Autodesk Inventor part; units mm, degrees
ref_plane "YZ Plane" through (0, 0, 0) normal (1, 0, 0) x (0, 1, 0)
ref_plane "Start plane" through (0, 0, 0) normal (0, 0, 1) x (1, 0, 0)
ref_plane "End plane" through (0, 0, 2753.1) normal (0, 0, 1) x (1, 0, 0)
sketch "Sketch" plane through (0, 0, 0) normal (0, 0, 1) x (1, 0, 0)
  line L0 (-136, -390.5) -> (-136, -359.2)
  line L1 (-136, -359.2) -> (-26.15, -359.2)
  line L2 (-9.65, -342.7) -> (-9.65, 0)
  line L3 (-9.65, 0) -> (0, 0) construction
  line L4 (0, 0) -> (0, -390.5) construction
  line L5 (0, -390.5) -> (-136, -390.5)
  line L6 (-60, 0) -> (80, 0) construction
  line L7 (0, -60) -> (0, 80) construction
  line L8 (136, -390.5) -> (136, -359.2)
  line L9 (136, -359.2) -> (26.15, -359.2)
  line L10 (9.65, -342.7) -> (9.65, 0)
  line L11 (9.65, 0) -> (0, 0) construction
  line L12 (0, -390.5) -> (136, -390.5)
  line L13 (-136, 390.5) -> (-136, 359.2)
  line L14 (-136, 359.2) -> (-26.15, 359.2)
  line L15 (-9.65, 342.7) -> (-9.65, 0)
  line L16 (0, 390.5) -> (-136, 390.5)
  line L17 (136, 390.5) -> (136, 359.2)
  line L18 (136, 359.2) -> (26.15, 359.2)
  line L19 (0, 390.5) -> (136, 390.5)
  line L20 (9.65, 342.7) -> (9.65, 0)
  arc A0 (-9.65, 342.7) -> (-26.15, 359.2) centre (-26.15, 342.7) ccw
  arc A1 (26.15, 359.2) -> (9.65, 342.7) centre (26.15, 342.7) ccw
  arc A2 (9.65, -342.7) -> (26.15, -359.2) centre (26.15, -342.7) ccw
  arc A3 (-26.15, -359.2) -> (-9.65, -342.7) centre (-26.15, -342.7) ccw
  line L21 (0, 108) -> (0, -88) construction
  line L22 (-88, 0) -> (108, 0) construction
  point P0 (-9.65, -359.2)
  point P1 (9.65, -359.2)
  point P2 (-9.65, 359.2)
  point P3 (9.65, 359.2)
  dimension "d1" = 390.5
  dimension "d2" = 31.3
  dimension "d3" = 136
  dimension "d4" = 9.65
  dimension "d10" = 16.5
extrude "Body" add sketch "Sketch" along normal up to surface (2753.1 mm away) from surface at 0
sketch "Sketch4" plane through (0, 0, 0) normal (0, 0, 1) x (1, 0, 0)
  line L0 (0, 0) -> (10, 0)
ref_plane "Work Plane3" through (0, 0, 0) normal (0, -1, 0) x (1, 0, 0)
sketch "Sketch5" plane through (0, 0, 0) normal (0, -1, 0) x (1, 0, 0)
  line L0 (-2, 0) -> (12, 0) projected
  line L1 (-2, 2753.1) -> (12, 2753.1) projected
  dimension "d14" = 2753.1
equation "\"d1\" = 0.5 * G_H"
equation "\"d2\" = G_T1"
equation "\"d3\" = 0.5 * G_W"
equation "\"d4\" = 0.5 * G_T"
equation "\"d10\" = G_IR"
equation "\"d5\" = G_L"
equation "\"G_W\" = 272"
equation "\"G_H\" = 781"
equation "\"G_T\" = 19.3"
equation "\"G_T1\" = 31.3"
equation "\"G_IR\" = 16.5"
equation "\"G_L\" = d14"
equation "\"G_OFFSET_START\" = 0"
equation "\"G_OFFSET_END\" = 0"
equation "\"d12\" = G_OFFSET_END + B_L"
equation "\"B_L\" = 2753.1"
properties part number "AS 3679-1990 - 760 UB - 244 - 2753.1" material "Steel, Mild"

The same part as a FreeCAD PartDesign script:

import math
import FreeCAD as App
import Part
import Sketcher
Q = App.Units.Quantity

doc = App.newDocument("Part")
params = doc.addObject("Spreadsheet::Sheet", "Params")
for row, (alias, value) in enumerate([
    ("sketch1_radius", "16.5 mm"),
    ("sketch1_height", "31.3 mm"),
    ("pad1_length", "2753.1 mm"),
], start=1):
    params.set(f"A{row}", alias)
    params.set(f"B{row}", "=" + value)
    params.setAlias(f"B{row}", alias)

body = doc.addObject("PartDesign::Body", "Body")

sketch1 = doc.addObject("Sketcher::SketchObject", "Sketch")
body.addObject(sketch1)
sketch1.AttachmentSupport = (doc.XY_Plane, [""])
sketch1.MapMode = "FlatFace"
sketch1.addGeometry(Part.LineSegment(App.Vector(-136, -359, 0), App.Vector(-136, -390, 0)), False)
sketch1.addGeometry(Part.LineSegment(App.Vector(-136, -390, 0), App.Vector(136, -390, 0)), False)
sketch1.addGeometry(Part.LineSegment(App.Vector(136, -390, 0), App.Vector(136, -359, 0)), False)
sketch1.addGeometry(Part.LineSegment(App.Vector(136, -359, 0), App.Vector(26, -359, 0)), False)
sketch1.addGeometry(Part.ArcOfCircle(Part.Circle(App.Vector(26, -343, 0), App.Vector(0, 0, 1), 16), math.radians(180), math.radians(270)), False)
sketch1.addGeometry(Part.LineSegment(App.Vector(10, -343, 0), App.Vector(10, 343, 0)), False)
sketch1.addGeometry(Part.ArcOfCircle(Part.Circle(App.Vector(26, 343, 0), App.Vector(0, 0, 1), 16), math.radians(90), math.radians(180)), False)
sketch1.addGeometry(Part.LineSegment(App.Vector(26, 359, 0), App.Vector(136, 359, 0)), False)
sketch1.addGeometry(Part.LineSegment(App.Vector(136, 359, 0), App.Vector(136, 390, 0)), False)
sketch1.addGeometry(Part.LineSegment(App.Vector(136, 390, 0), App.Vector(-136, 390, 0)), False)
sketch1.addGeometry(Part.LineSegment(App.Vector(-136, 390, 0), App.Vector(-136, 359, 0)), False)
sketch1.addGeometry(Part.LineSegment(App.Vector(-136, 359, 0), App.Vector(-26, 359, 0)), False)
sketch1.addGeometry(Part.ArcOfCircle(Part.Circle(App.Vector(-26, 343, 0), App.Vector(0, 0, 1), 16), math.radians(0), math.radians(90)), False)
sketch1.addGeometry(Part.LineSegment(App.Vector(-10, 343, 0), App.Vector(-10, -343, 0)), False)
sketch1.addGeometry(Part.ArcOfCircle(Part.Circle(App.Vector(-26, -343, 0), App.Vector(0, 0, 1), 16), math.radians(-90), math.radians(0)), False)
sketch1.addGeometry(Part.LineSegment(App.Vector(-26, -359, 0), App.Vector(-136, -359, 0)), False)
sketch1.addConstraint(Sketcher.Constraint("Coincident", 0, 2, 1, 1))
sketch1.addConstraint(Sketcher.Constraint("Coincident", 1, 2, 2, 1))
sketch1.addConstraint(Sketcher.Constraint("Coincident", 2, 2, 3, 1))
sketch1.addConstraint(Sketcher.Constraint("Tangent", 3, 2, 4, 2))
sketch1.addConstraint(Sketcher.Constraint("Tangent", 4, 1, 5, 1))
sketch1.addConstraint(Sketcher.Constraint("Tangent", 5, 2, 6, 2))
sketch1.addConstraint(Sketcher.Constraint("Tangent", 6, 1, 7, 1))
sketch1.addConstraint(Sketcher.Constraint("Coincident", 7, 2, 8, 1))
sketch1.addConstraint(Sketcher.Constraint("Coincident", 8, 2, 9, 1))
sketch1.addConstraint(Sketcher.Constraint("Coincident", 9, 2, 10, 1))
sketch1.addConstraint(Sketcher.Constraint("Coincident", 10, 2, 11, 1))
sketch1.addConstraint(Sketcher.Constraint("Tangent", 11, 2, 12, 2))
sketch1.addConstraint(Sketcher.Constraint("Tangent", 12, 1, 13, 1))
sketch1.addConstraint(Sketcher.Constraint("Tangent", 13, 2, 14, 2))
sketch1.addConstraint(Sketcher.Constraint("Tangent", 14, 1, 15, 1))
sketch1.addConstraint(Sketcher.Constraint("Coincident", 15, 2, 0, 1))
sketch1.addConstraint(Sketcher.Constraint("Vertical", 0))
sketch1.addConstraint(Sketcher.Constraint("Horizontal", 1))
sketch1.addConstraint(Sketcher.Constraint("Vertical", 2))
sketch1.addConstraint(Sketcher.Constraint("Horizontal", 3))
sketch1.addConstraint(Sketcher.Constraint("Vertical", 5))
sketch1.addConstraint(Sketcher.Constraint("Horizontal", 7))
sketch1.addConstraint(Sketcher.Constraint("Vertical", 8))
sketch1.addConstraint(Sketcher.Constraint("Horizontal", 9))
sketch1.addConstraint(Sketcher.Constraint("Vertical", 10))
sketch1.addConstraint(Sketcher.Constraint("Horizontal", 11))
sketch1.addConstraint(Sketcher.Constraint("Vertical", 13))
sketch1.addConstraint(Sketcher.Constraint("Horizontal", 15))
sketch1.addConstraint(Sketcher.Constraint("Equal", 4, 6))
sketch1.addConstraint(Sketcher.Constraint("Equal", 6, 12))
sketch1.addConstraint(Sketcher.Constraint("Equal", 12, 14))
sketch1.addConstraint(Sketcher.Constraint("Symmetric", 4, 3, 12, 3, -1, 1))
sketch1.addConstraint(Sketcher.Constraint("Symmetric", 0, 2, 8, 2, -1, 1))
sketch1.addConstraint(Sketcher.Constraint("Symmetric", 7, 2, 10, 2, -2))
sketch1.addConstraint(Sketcher.Constraint("Symmetric", 2, 2, 15, 2, -2))
sketch1.addConstraint(Sketcher.Constraint("Radius", 4, Q("16.5 mm")))
sketch1.addConstraint(Sketcher.Constraint("DistanceY", 0, 2, 0, 1, Q("31.3 mm")))
sketch1.addConstraint(Sketcher.Constraint("DistanceX", 0, 2, -1, 1, Q("136 mm")))
sketch1.addConstraint(Sketcher.Constraint("DistanceY", 0, 2, -1, 1, Q("390.5 mm")))
sketch1.addConstraint(Sketcher.Constraint("DistanceX", -1, 1, 4, 1, Q("9.65 mm")))
sketch1.setExpression("Constraints[35]", "Params.sketch1_radius")
sketch1.setExpression("Constraints[36]", "Params.sketch1_height")
pad1 = doc.addObject("PartDesign::Pad", "Pad")
body.addObject(pad1)
pad1.Profile = sketch1
pad1.setExpression("Length", "Params.pad1_length")

doc.recompute()
